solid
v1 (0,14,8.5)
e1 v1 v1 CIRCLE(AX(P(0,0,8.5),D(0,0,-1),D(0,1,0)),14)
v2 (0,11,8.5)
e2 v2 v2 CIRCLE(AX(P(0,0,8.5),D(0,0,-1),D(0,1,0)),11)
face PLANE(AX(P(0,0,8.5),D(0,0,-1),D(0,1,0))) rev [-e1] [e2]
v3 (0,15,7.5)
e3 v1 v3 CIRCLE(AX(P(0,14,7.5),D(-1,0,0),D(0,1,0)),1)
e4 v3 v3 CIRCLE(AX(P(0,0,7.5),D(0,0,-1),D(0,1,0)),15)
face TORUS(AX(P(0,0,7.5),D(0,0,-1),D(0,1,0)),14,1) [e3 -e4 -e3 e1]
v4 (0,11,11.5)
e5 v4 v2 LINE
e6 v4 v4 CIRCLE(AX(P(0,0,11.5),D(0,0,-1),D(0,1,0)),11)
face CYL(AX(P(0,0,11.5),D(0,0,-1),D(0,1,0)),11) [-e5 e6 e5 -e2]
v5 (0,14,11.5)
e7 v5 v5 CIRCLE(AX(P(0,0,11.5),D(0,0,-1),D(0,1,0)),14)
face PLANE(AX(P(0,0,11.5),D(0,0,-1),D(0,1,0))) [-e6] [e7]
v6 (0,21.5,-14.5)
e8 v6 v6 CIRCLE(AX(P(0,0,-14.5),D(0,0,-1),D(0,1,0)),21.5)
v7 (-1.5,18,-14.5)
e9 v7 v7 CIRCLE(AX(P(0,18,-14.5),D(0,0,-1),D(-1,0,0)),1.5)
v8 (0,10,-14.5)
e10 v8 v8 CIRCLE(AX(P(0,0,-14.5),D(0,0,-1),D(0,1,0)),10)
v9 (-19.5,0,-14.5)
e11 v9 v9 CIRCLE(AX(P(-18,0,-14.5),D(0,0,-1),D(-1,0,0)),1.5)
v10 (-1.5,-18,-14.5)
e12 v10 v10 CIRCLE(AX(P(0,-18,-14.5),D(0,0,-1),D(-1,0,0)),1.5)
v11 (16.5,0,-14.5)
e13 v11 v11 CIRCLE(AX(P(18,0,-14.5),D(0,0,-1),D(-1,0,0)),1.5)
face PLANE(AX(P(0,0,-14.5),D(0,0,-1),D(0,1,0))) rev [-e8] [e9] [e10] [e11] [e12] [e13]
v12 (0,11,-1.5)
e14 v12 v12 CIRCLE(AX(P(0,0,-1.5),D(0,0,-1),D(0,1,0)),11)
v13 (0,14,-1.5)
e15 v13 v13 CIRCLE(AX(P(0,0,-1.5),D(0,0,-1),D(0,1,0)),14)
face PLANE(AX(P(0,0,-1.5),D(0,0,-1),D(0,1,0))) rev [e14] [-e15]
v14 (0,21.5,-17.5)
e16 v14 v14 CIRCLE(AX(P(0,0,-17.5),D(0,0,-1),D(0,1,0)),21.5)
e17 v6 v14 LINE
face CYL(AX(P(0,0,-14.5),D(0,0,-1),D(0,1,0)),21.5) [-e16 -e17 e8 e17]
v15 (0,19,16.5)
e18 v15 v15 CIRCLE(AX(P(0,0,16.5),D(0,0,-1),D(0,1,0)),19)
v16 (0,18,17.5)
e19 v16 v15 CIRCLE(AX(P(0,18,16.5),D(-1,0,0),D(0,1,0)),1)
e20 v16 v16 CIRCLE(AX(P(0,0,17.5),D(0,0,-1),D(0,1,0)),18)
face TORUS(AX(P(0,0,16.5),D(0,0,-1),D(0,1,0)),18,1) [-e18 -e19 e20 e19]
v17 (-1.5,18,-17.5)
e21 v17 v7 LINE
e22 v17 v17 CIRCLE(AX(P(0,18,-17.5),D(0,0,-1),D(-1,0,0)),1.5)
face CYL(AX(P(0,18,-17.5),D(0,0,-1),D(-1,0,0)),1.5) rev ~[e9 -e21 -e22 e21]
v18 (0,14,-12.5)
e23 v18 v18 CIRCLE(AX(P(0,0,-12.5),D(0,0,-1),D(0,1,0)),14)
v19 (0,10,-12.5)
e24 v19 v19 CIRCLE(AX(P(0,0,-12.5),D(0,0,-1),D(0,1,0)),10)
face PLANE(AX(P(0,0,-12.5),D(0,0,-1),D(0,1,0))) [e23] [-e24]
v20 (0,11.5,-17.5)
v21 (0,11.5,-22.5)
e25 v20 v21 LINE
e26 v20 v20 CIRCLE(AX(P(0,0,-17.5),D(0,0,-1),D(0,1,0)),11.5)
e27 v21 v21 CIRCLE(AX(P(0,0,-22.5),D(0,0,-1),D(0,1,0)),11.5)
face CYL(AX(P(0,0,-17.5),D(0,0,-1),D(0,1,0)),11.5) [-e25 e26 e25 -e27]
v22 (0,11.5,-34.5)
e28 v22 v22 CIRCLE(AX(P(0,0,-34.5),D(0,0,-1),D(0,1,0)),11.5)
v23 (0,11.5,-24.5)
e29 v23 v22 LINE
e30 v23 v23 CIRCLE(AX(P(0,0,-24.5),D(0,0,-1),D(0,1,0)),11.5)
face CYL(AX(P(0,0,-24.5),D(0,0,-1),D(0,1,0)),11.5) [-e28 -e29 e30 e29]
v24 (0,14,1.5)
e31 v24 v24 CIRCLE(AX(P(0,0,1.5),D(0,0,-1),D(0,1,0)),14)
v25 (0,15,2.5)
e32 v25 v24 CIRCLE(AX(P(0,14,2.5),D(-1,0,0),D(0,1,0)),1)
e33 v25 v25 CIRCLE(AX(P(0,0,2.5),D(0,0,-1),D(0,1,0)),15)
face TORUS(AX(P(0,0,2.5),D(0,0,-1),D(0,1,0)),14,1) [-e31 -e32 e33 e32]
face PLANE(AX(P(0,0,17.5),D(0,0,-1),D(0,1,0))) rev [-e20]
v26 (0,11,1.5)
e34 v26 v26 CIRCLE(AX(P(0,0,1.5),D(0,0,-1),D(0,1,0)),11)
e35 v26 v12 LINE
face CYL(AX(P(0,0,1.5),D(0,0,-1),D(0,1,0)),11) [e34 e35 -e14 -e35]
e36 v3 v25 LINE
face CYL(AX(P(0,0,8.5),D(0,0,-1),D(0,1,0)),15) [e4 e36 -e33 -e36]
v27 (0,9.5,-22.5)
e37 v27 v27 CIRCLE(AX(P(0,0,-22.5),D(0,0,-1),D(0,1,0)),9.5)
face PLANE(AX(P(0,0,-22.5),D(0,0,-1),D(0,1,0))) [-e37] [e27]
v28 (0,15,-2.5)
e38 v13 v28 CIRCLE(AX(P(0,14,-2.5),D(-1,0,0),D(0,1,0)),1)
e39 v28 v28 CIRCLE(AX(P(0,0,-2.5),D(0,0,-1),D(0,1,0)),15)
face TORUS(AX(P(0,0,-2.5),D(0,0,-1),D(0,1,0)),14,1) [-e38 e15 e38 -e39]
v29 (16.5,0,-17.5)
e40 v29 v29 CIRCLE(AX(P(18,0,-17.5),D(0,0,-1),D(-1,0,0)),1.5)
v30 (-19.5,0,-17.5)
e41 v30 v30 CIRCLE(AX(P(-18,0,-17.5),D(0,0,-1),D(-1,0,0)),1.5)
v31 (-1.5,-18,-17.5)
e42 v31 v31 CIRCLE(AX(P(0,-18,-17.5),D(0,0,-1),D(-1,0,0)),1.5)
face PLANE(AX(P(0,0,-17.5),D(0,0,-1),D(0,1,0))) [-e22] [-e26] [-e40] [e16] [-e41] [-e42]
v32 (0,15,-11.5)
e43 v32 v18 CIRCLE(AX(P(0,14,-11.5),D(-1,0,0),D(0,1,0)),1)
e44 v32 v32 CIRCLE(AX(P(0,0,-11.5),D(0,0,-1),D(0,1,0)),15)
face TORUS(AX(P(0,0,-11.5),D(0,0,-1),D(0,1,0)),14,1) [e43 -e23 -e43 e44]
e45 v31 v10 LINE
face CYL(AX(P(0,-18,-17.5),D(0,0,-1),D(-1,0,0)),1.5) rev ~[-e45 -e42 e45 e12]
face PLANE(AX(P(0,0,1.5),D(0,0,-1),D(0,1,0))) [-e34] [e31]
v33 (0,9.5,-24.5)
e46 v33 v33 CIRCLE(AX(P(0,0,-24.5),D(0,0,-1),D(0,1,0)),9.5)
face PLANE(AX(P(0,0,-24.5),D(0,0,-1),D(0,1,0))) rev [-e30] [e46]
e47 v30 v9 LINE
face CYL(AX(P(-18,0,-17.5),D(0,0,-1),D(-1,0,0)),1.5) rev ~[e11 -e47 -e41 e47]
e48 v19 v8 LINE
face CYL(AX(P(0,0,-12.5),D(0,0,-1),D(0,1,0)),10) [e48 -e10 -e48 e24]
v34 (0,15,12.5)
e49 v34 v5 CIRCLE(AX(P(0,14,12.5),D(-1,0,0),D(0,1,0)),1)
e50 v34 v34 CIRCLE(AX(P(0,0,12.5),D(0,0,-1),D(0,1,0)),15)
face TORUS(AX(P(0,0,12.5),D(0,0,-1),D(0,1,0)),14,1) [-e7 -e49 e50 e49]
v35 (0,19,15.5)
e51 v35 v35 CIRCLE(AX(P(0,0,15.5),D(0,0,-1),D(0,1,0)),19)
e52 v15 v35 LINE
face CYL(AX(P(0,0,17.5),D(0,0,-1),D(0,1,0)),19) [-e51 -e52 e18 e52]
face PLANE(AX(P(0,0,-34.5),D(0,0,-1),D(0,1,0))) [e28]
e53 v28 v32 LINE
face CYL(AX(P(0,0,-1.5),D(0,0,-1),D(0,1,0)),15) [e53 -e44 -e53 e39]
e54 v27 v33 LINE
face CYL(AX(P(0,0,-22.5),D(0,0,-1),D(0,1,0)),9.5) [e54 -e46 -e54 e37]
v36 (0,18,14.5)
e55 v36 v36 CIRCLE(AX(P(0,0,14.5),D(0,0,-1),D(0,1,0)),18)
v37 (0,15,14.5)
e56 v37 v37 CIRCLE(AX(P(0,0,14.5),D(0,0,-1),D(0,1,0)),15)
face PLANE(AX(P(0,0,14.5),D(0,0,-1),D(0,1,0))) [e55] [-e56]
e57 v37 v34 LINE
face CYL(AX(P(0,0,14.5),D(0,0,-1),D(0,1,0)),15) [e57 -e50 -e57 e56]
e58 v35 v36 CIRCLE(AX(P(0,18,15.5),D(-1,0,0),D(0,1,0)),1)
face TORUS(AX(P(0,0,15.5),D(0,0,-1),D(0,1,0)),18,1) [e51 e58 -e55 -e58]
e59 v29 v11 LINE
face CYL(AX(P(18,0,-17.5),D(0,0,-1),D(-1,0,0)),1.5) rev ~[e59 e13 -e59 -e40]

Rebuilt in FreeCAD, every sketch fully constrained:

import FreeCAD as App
import Part
import Sketcher
from FreeCAD import Vector
Q = App.Units.Quantity


def edges_at(feature, points):
    """Names of the edges that pass closest to the given points."""
    edges = feature.Shape.Edges
    near = lambda p: min(range(len(edges)), key=lambda i: edges[i].distToShape(Part.Vertex(*p))[0])
    return sorted({f"Edge{near(p) + 1}" for p in points})

doc = App.newDocument("Part")
body = doc.addObject("PartDesign::Body", "Body")

sketch1 = body.newObject("Sketcher::SketchObject", "Sketch")
sketch1.AttachmentSupport = (doc.getObject("YZ_Plane"), [""])
sketch1.MapMode = "FlatFace"
sketch1.addGeometry([
    Part.LineSegment(Vector(19, 17.5, 0), Vector(0, 17.5, 0)),
    Part.LineSegment(Vector(0, 17.5, 0), Vector(0, -34.5, 0)),
    Part.LineSegment(Vector(0, -34.5, 0), Vector(11.5, -34.5, 0)),
    Part.LineSegment(Vector(11.5, -34.5, 0), Vector(11.5, -24.5, 0)),
    Part.LineSegment(Vector(11.5, -24.5, 0), Vector(9.5, -24.5, 0)),
    Part.LineSegment(Vector(9.5, -24.5, 0), Vector(9.5, -22.5, 0)),
    Part.LineSegment(Vector(9.5, -22.5, 0), Vector(11.5, -22.5, 0)),
    Part.LineSegment(Vector(11.5, -22.5, 0), Vector(11.5, -17.5, 0)),
    Part.LineSegment(Vector(11.5, -17.5, 0), Vector(21.5, -17.5, 0)),
    Part.LineSegment(Vector(21.5, -17.5, 0), Vector(21.5, -14.5, 0)),
    Part.LineSegment(Vector(21.5, -14.5, 0), Vector(10, -14.5, 0)),
    Part.LineSegment(Vector(10, -14.5, 0), Vector(10, -12.5, 0)),
    Part.LineSegment(Vector(10, -12.5, 0), Vector(15, -12.5, 0)),
    Part.LineSegment(Vector(15, -12.5, 0), Vector(15, -1.5, 0)),
    Part.LineSegment(Vector(15, -1.5, 0), Vector(11, -1.5, 0)),
    Part.LineSegment(Vector(11, -1.5, 0), Vector(11, 1.5, 0)),
    Part.LineSegment(Vector(11, 1.5, 0), Vector(15, 1.5, 0)),
    Part.LineSegment(Vector(15, 1.5, 0), Vector(15, 8.5, 0)),
    Part.LineSegment(Vector(15, 8.5, 0), Vector(11, 8.5, 0)),
    Part.LineSegment(Vector(11, 8.5, 0), Vector(11, 11.5, 0)),
    Part.LineSegment(Vector(11, 11.5, 0), Vector(15, 11.5, 0)),
    Part.LineSegment(Vector(15, 11.5, 0), Vector(15, 14.5, 0)),
    Part.LineSegment(Vector(15, 14.5, 0), Vector(19, 14.5, 0)),
    Part.LineSegment(Vector(19, 14.5, 0), Vector(19, 17.5, 0)),
], False)
sketch1.addConstraint([
    Sketcher.Constraint("Coincident", 0, 2, 1, 1),
    Sketcher.Constraint("Coincident", 1, 2, 2, 1),
    Sketcher.Constraint("Coincident", 2, 2, 3, 1),
    Sketcher.Constraint("Coincident", 3, 2, 4, 1),
    Sketcher.Constraint("Coincident", 4, 2, 5, 1),
    Sketcher.Constraint("Coincident", 5, 2, 6, 1),
    Sketcher.Constraint("Coincident", 6, 2, 7, 1),
    Sketcher.Constraint("Coincident", 7, 2, 8, 1),
    Sketcher.Constraint("Coincident", 8, 2, 9, 1),
    Sketcher.Constraint("Coincident", 9, 2, 10, 1),
    Sketcher.Constraint("Coincident", 10, 2, 11, 1),
    Sketcher.Constraint("Coincident", 11, 2, 12, 1),
    Sketcher.Constraint("Coincident", 12, 2, 13, 1),
    Sketcher.Constraint("Coincident", 13, 2, 14, 1),
    Sketcher.Constraint("Coincident", 14, 2, 15, 1),
    Sketcher.Constraint("Coincident", 15, 2, 16, 1),
    Sketcher.Constraint("Coincident", 16, 2, 17, 1),
    Sketcher.Constraint("Coincident", 17, 2, 18, 1),
    Sketcher.Constraint("Coincident", 18, 2, 19, 1),
    Sketcher.Constraint("Coincident", 19, 2, 20, 1),
    Sketcher.Constraint("Coincident", 20, 2, 21, 1),
    Sketcher.Constraint("Coincident", 21, 2, 22, 1),
    Sketcher.Constraint("Coincident", 22, 2, 23, 1),
    Sketcher.Constraint("Coincident", 23, 2, 0, 1),
    Sketcher.Constraint("Horizontal", 0),
    Sketcher.Constraint("Vertical", 1),
    Sketcher.Constraint("Horizontal", 2),
    Sketcher.Constraint("Vertical", 3),
    Sketcher.Constraint("Horizontal", 4),
    Sketcher.Constraint("Vertical", 5),
    Sketcher.Constraint("Horizontal", 6),
    Sketcher.Constraint("Vertical", 7),
    Sketcher.Constraint("Horizontal", 8),
    Sketcher.Constraint("Vertical", 9),
    Sketcher.Constraint("Horizontal", 10),
    Sketcher.Constraint("Vertical", 11),
    Sketcher.Constraint("Horizontal", 12),
    Sketcher.Constraint("Vertical", 13),
    Sketcher.Constraint("Horizontal", 14),
    Sketcher.Constraint("Vertical", 15),
    Sketcher.Constraint("Horizontal", 16),
    Sketcher.Constraint("Vertical", 17),
    Sketcher.Constraint("Horizontal", 18),
    Sketcher.Constraint("Vertical", 19),
    Sketcher.Constraint("Horizontal", 20),
    Sketcher.Constraint("Vertical", 21),
    Sketcher.Constraint("Horizontal", 22),
    Sketcher.Constraint("Vertical", 23),
    Sketcher.Constraint("Symmetric", 13, 2, 16, 2, -1),
    Sketcher.Constraint("PointOnObject", 0, 2, -2),
    Sketcher.Constraint("Vertical", 3, 2, 6, 2),
    Sketcher.Constraint("Vertical", 15, 2, 18, 2),
    Sketcher.Constraint("Vertical", 17, 2, 20, 2),
    Sketcher.Constraint("Equal", 2, 10),
    Sketcher.Constraint("Equal", 20, 22),
    Sketcher.Constraint("Equal", 8, 3),
    Sketcher.Constraint("Equal", 6, 5),
    Sketcher.Constraint("Equal", 12, 7),
    Sketcher.Constraint("Equal", 5, 11),
    Sketcher.Constraint("Equal", 9, 15),
    Sketcher.Constraint("Equal", 15, 19),
    Sketcher.Constraint("Equal", 19, 21),
    Sketcher.Constraint("Equal", 21, 23),
    Sketcher.Constraint("DistanceX", 0, 2, 0, 1, Q("19 mm")),
    Sketcher.Constraint("DistanceX", 4, 2, 4, 1, Q("2 mm")),
    Sketcher.Constraint("DistanceX", 8, 1, 8, 2, Q("10 mm")),
    Sketcher.Constraint("DistanceX", 12, 1, 12, 2, Q("5 mm")),
    Sketcher.Constraint("DistanceY", 1, 2, 1, 1, Q("52 mm")),
    Sketcher.Constraint("DistanceY", 9, 1, 9, 2, Q("3 mm")),
    Sketcher.Constraint("DistanceY", 13, 1, 13, 2, Q("11 mm")),
    Sketcher.Constraint("DistanceX", 2, 1, 2, 2, Q("11.5 mm")),
])
revolution = body.newObject("PartDesign::Revolution", "Revolution")
revolution.Profile = sketch1
revolution.ReferenceAxis = (sketch1, ["V_Axis"])
revolution.Angle = 360
doc.recompute()

fillet = body.newObject("PartDesign::Fillet", "Fillet")
fillet.Base = (revolution, edges_at(revolution, [
    (0, -19, 14.5),
    (0, -15, 1.5),
    (0, -15, -1.5),
    (0, -15, -12.5),
    (0, -19, 17.5),
    (0, -15, 11.5),
    (0, -15, 8.5),
]))
fillet.Radius = 1

sketch2 = body.newObject("Sketcher::SketchObject", "Sketch001")
sketch2.AttachmentSupport = (doc.getObject("XY_Plane"), [""])
sketch2.MapMode = "FlatFace"
sketch2.AttachmentOffset = App.Placement(Vector(0, 0, -17.5), App.Rotation())
sketch2.addGeometry([
    Part.Circle(Vector(0, 18, 0), Vector(0, 0, 1), 1.5),
    Part.Circle(Vector(-18, 0, 0), Vector(0, 0, 1), 1.5),
    Part.Circle(Vector(0, -18, 0), Vector(0, 0, 1), 1.5),
    Part.Circle(Vector(18, 0, 0), Vector(0, 0, 1), 1.5),
], False)
sketch2.addConstraint([
    Sketcher.Constraint("Equal", 0, 1),
    Sketcher.Constraint("Equal", 1, 2),
    Sketcher.Constraint("Equal", 2, 3),
    Sketcher.Constraint("Symmetric", 0, 3, 2, 3, -1, 1),
    Sketcher.Constraint("Symmetric", 1, 3, 3, 3, -1, 1),
    Sketcher.Constraint("PointOnObject", 0, 3, -2),
    Sketcher.Constraint("PointOnObject", 1, 3, -1),
    Sketcher.Constraint("Diameter", 0, Q("3 mm")),
    Sketcher.Constraint("DistanceY", -1, 1, 0, 3, Q("18 mm")),
    Sketcher.Constraint("DistanceX", 1, 3, -1, 1, Q("18 mm")),
])
pocket1 = body.newObject("PartDesign::Pocket", "Pocket")
pocket1.Profile = sketch2
pocket1.Length = 3
pocket1.Reversed = True

doc.recompute()
